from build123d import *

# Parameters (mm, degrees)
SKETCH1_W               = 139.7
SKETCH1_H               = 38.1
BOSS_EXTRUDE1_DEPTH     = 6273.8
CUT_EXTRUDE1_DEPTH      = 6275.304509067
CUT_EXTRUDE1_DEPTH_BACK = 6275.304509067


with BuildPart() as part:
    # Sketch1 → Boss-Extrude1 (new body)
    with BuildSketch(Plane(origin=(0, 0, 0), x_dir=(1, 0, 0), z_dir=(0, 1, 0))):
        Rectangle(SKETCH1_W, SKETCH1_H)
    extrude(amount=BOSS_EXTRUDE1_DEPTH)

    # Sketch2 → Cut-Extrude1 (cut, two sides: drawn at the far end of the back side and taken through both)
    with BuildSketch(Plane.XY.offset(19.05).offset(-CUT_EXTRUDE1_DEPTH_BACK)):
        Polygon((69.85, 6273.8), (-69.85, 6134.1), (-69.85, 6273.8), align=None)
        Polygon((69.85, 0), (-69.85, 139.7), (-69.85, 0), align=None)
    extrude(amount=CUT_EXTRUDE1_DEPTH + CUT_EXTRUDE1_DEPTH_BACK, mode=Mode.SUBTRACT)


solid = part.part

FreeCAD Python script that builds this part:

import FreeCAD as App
import Part
import Sketcher
Q = App.Units.Quantity

doc = App.newDocument("Part")
body = doc.addObject("PartDesign::Body", "Body")

# Sketch on XZ plane
sketch1 = body.newObject("Sketcher::SketchObject", "Sketch")
sketch1.AttachmentSupport = (doc.getObject("XZ_Plane"), [""])
sketch1.MapMode = "FlatFace"
sketch1.addGeometry(Part.LineSegment(App.Vector(-70, -19, 0), App.Vector(-70, 19, 0)), False)
sketch1.addGeometry(Part.LineSegment(App.Vector(-70, 19, 0), App.Vector(70, 19, 0)), False)
sketch1.addGeometry(Part.LineSegment(App.Vector(70, 19, 0), App.Vector(70, -19, 0)), False)
sketch1.addGeometry(Part.LineSegment(App.Vector(70, -19, 0), App.Vector(-70, -19, 0)), False)
sketch1.addConstraint(Sketcher.Constraint("Coincident", 0, 2, 1, 1))
sketch1.addConstraint(Sketcher.Constraint("Coincident", 1, 2, 2, 1))
sketch1.addConstraint(Sketcher.Constraint("Coincident", 2, 2, 3, 1))
sketch1.addConstraint(Sketcher.Constraint("Coincident", 3, 2, 0, 1))
sketch1.addConstraint(Sketcher.Constraint("Vertical", 0))
sketch1.addConstraint(Sketcher.Constraint("Horizontal", 1))
sketch1.addConstraint(Sketcher.Constraint("Vertical", 2))
sketch1.addConstraint(Sketcher.Constraint("Horizontal", 3))
sketch1.addConstraint(Sketcher.Constraint("Symmetric", 0, 2, 2, 2, -1, 1))
sketch1.addConstraint(Sketcher.Constraint("DistanceX", 1, 1, 1, 2, Q("5.5 in")))
sketch1.addConstraint(Sketcher.Constraint("DistanceY", 0, 1, 0, 2, Q("1.5 in")))
pad1 = body.newObject("PartDesign::Pad", "Pad")
pad1.Profile = sketch1
pad1.Length = Q("247 in")
pad1.Reversed = True

# Sketch on XY plane
sketch2 = body.newObject("Sketcher::SketchObject", "Sketch001")
sketch2.AttachmentSupport = (doc.getObject("XY_Plane"), [""])
sketch2.MapMode = "FlatFace"
sketch2.AttachmentOffset = App.Placement(App.Vector(0, 0, 0.75 * 25.4), App.Rotation())
sketch2.addGeometry(Part.LineSegment(App.Vector(-70, 6134, 0), App.Vector(70, 6274, 0)), False)
sketch2.addGeometry(Part.LineSegment(App.Vector(70, 6274, 0), App.Vector(-70, 6274, 0)), False)
sketch2.addGeometry(Part.LineSegment(App.Vector(-70, 6274, 0), App.Vector(-70, 6134, 0)), False)
sketch2.addGeometry(Part.LineSegment(App.Vector(70, 0, 0), App.Vector(-70, 140, 0)), False)
sketch2.addGeometry(Part.LineSegment(App.Vector(-70, 140, 0), App.Vector(-70, 0, 0)), False)
sketch2.addGeometry(Part.LineSegment(App.Vector(-70, 0, 0), App.Vector(70, 0, 0)), False)
sketch2.addConstraint(Sketcher.Constraint("Coincident", 0, 2, 1, 1))
sketch2.addConstraint(Sketcher.Constraint("Coincident", 1, 2, 2, 1))
sketch2.addConstraint(Sketcher.Constraint("Coincident", 2, 2, 0, 1))
sketch2.addConstraint(Sketcher.Constraint("Coincident", 3, 2, 4, 1))
sketch2.addConstraint(Sketcher.Constraint("Coincident", 4, 2, 5, 1))
sketch2.addConstraint(Sketcher.Constraint("Coincident", 5, 2, 3, 1))
sketch2.addConstraint(Sketcher.Constraint("Horizontal", 1))
sketch2.addConstraint(Sketcher.Constraint("Vertical", 2))
sketch2.addConstraint(Sketcher.Constraint("Vertical", 4))
sketch2.addConstraint(Sketcher.Constraint("Horizontal", 5))
sketch2.addConstraint(Sketcher.Constraint("Symmetric", 4, 2, 5, 2, -1, 1))
sketch2.addConstraint(Sketcher.Constraint("Perpendicular", 0, 3))
sketch2.addConstraint(Sketcher.Constraint("Vertical", 2, 2, 3, 2))
sketch2.addConstraint(Sketcher.Constraint("Vertical", 0, 2, 5, 2))
sketch2.addConstraint(Sketcher.Constraint("Equal", 5, 2))
sketch2.addConstraint(Sketcher.Constraint("DistanceX", 1, 2, 1, 1, Q("5.5 in")))
sketch2.addConstraint(Sketcher.Constraint("DistanceY", -1, 1, 0, 2, Q("247 in")))
pocket1 = body.newObject("PartDesign::Pocket", "Pocket")
pocket1.Profile = sketch2
pocket1.Type = "ThroughAll"
pocket1.Midplane = True

doc.recompute()
